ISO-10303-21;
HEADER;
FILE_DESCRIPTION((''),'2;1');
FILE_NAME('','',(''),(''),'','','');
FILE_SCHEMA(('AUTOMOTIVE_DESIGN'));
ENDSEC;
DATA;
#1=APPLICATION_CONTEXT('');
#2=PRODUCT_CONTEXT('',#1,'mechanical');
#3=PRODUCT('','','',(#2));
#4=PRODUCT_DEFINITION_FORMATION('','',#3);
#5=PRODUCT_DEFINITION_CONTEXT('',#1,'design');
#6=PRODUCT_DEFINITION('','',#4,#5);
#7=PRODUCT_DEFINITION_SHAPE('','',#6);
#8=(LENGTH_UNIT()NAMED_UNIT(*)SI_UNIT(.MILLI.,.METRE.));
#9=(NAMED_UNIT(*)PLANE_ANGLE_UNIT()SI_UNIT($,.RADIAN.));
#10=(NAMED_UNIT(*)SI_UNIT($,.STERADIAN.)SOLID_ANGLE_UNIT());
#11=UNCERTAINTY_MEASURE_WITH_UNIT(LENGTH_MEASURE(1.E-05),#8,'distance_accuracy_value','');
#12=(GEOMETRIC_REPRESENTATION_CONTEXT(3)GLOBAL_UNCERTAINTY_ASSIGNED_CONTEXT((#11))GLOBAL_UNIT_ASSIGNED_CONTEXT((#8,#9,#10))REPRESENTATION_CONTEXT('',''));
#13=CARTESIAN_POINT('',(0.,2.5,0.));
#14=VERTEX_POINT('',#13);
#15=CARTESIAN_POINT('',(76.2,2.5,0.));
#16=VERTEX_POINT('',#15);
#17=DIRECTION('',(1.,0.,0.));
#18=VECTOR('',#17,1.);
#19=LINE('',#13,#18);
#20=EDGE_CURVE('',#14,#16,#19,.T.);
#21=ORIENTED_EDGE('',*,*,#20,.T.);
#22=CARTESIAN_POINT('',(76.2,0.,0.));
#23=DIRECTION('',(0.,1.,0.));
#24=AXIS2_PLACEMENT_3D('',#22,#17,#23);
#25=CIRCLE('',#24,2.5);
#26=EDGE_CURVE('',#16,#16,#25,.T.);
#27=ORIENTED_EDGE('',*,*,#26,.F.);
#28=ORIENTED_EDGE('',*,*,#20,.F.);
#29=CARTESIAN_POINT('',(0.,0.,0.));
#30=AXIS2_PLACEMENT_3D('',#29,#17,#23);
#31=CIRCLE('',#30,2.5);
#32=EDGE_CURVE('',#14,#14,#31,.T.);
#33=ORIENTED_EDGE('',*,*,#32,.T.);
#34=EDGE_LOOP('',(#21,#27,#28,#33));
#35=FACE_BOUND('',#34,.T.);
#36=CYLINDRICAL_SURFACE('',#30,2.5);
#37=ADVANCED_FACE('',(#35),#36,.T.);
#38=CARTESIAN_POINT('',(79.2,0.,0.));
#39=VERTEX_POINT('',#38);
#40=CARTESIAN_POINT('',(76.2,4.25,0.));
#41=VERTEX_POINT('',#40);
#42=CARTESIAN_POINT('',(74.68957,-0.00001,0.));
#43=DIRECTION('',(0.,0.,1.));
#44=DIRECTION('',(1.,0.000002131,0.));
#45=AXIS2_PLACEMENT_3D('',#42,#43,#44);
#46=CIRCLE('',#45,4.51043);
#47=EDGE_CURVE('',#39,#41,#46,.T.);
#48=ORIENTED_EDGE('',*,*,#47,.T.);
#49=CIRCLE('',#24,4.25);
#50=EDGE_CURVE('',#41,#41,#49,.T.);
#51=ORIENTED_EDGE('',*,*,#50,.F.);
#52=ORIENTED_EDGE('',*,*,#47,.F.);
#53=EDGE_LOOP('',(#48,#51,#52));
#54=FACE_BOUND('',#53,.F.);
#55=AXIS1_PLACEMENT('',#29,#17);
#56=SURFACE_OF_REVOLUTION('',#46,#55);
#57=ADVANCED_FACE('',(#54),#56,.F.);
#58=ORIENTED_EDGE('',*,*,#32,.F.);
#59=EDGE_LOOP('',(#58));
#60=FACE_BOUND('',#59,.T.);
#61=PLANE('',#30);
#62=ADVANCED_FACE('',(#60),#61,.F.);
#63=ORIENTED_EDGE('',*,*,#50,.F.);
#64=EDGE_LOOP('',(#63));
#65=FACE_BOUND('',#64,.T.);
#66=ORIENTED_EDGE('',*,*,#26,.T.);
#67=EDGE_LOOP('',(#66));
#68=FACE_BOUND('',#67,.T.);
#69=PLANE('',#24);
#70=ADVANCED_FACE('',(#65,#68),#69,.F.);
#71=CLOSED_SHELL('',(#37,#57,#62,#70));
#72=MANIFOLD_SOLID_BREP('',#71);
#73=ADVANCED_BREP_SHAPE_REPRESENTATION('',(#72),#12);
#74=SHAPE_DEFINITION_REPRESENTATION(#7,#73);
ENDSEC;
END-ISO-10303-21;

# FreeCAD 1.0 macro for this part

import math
import FreeCAD as App
import Part
import Sketcher

V = App.Vector

doc = App.newDocument("Part")
params = doc.addObject("Spreadsheet::Sheet", "Params")
for row, (alias, value) in enumerate([
    ("sketch1_width", "76.2 mm"),
    ("sketch1_height", "2.5 mm"),
    ("revolution_angle", "360 deg"),
], start=1):
    params.set(f"A{row}", alias)
    params.set(f"B{row}", "=" + value)
    params.setAlias(f"B{row}", alias)

body = doc.addObject("PartDesign::Body", "Body")

# Sketch on XY plane
sketch1 = body.newObject("Sketcher::SketchObject", "Sketch")
sketch1.AttachmentSupport = (doc.getObject("XY_Plane"), [""])
sketch1.MapMode = "FlatFace"
sketch1.addGeometry([
    Part.LineSegment(V(0, 2.5, 0), V(0, 0, 0)),  # 0
    Part.LineSegment(V(0, 0, 0), V(79.2, 0, 0)),  # 1
    Part.ArcOfCircle(Part.Circle(V(74.7, 0, 0), V(0, 0, 1), 4.5), math.radians(0), math.radians(70)),  # 2
    Part.LineSegment(V(76.2, 4.2, 0), V(76.2, 2.5, 0)),  # 3
    Part.LineSegment(V(76.2, 2.5, 0), V(0, 2.5, 0)),  # 4
], False)
sketch1.addConstraint([
    Sketcher.Constraint("Coincident", 0, 2, 1, 1),
    Sketcher.Constraint("Coincident", 1, 2, 2, 1),
    Sketcher.Constraint("Coincident", 2, 2, 3, 1),
    Sketcher.Constraint("Coincident", 3, 2, 4, 1),
    Sketcher.Constraint("Coincident", 4, 2, 0, 1),
    Sketcher.Constraint("Vertical", 0),
    Sketcher.Constraint("Horizontal", 1),
    Sketcher.Constraint("Vertical", 3),
    Sketcher.Constraint("Horizontal", 4),
    Sketcher.Constraint("Coincident", 0, 2, -1, 1),
    Sketcher.Constraint("PointOnObject", 2, 3, -1),
    Sketcher.Constraint("DistanceX", 4, 2, 4, 1, 76.2),
    Sketcher.Constraint("DistanceY", 0, 2, 0, 1, 2.5),
    Sketcher.Constraint("DistanceX", 2, 2, 1, 2, 3.0),
    Sketcher.Constraint("DistanceY", -1, 1, 2, 2, 4.25),
])
sketch1.setExpression("Constraints[11]", "Params.sketch1_width")
sketch1.setExpression("Constraints[12]", "Params.sketch1_height")
revolution = body.newObject("PartDesign::Revolution", "Revolution")
revolution.Profile = sketch1
revolution.ReferenceAxis = (sketch1, ["H_Axis"])
revolution.setExpression("Angle", "Params.revolution_angle")

doc.recompute()
